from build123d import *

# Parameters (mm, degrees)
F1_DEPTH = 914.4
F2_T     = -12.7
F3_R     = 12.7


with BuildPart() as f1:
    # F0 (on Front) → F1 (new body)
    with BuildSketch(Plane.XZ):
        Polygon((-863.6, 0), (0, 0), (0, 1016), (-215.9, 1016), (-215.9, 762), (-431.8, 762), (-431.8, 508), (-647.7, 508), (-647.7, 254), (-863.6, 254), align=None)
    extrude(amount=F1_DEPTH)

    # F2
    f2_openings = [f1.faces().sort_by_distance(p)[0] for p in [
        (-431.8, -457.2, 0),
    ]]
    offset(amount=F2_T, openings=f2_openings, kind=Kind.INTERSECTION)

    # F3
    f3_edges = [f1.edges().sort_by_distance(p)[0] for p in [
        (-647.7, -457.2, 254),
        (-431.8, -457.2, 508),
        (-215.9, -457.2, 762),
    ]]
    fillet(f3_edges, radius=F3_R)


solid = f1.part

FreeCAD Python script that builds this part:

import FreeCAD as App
import Part
import Sketcher

V = App.Vector
Q = App.Units.Quantity


def edges_at(feature, points):
    """Names of the edges that pass closest to the given points."""
    edges = feature.Shape.Edges
    near = lambda p: min(range(len(edges)), key=lambda i: edges[i].distToShape(Part.Vertex(*p))[0])
    return sorted({f"Edge{near(p) + 1}" for p in points})


def faces_at(feature, points):
    """Names of the faces that lie closest to the given points."""
    faces = feature.Shape.Faces
    near = lambda p: min(range(len(faces)), key=lambda i: faces[i].distToShape(Part.Vertex(*p))[0])
    return sorted({f"Face{near(p) + 1}" for p in points})


def add_polygon(sketch, points):
    """Adds a closed chain of lines whose ends are joined by coincident constraints."""
    first, n = sketch.GeometryCount, len(points)
    for a, b in zip(points, points[1:] + points[:1]):
        sketch.addGeometry(Part.LineSegment(App.Vector(*a, 0), App.Vector(*b, 0)), False)
    for i in range(n):
        sketch.addConstraint(Sketcher.Constraint("Coincident", first + i, 2, first + (i + 1) % n, 1))

doc = App.newDocument("Part")
body = doc.addObject("PartDesign::Body", "Body")

# Sketch on XZ plane
sketch1 = body.newObject("Sketcher::SketchObject", "Sketch")
sketch1.AttachmentSupport = (doc.getObject("XZ_Plane"), [""])
sketch1.MapMode = "FlatFace"
add_polygon(sketch1, [(-864, 0), (0, 0), (0, 1016), (-216, 1016), (-216, 762), (-432, 762), (-432, 508), (-648, 508), (-648, 254), (-864, 254)])  # lines 0-9
sketch1.addConstraint([
    Sketcher.Constraint("Horizontal", 0),
    Sketcher.Constraint("Vertical", 1),
    Sketcher.Constraint("Horizontal", 2),
    Sketcher.Constraint("Vertical", 3),
    Sketcher.Constraint("Horizontal", 4),
    Sketcher.Constraint("Vertical", 5),
    Sketcher.Constraint("Horizontal", 6),
    Sketcher.Constraint("Vertical", 7),
    Sketcher.Constraint("Horizontal", 8),
    Sketcher.Constraint("Vertical", 9),
    Sketcher.Constraint("Coincident", 0, 2, -1, 1),
    Sketcher.Constraint("Equal", 2, 4),
    Sketcher.Constraint("Equal", 4, 6),
    Sketcher.Constraint("Equal", 6, 8),
    Sketcher.Constraint("Equal", 3, 5),
    Sketcher.Constraint("Equal", 5, 7),
    Sketcher.Constraint("Equal", 7, 9),
    Sketcher.Constraint("DistanceX", 0, 1, 0, 2, Q("34 in")),
    Sketcher.Constraint("DistanceY", 1, 1, 1, 2, Q("40 in")),
])
pad1 = body.newObject("PartDesign::Pad", "Pad")
pad1.Profile = sketch1
pad1.Length = Q("36 in")
doc.recompute()

thickness = body.newObject("PartDesign::Thickness", "Thickness")
thickness.Base = (pad1, faces_at(pad1, [(-431.8, -457.2, 0)]))
thickness.Value = Q("0.5 in")
thickness.Reversed = True
thickness.Join = "Intersection"
doc.recompute()

fillet = body.newObject("PartDesign::Fillet", "Fillet")
fillet.Base = (thickness, edges_at(thickness, [(-647.7, -457.2, 254), (-431.8, -457.2, 508), (-215.9, -457.2, 762)]))
fillet.Radius = Q("0.5 in")

doc.recompute()
